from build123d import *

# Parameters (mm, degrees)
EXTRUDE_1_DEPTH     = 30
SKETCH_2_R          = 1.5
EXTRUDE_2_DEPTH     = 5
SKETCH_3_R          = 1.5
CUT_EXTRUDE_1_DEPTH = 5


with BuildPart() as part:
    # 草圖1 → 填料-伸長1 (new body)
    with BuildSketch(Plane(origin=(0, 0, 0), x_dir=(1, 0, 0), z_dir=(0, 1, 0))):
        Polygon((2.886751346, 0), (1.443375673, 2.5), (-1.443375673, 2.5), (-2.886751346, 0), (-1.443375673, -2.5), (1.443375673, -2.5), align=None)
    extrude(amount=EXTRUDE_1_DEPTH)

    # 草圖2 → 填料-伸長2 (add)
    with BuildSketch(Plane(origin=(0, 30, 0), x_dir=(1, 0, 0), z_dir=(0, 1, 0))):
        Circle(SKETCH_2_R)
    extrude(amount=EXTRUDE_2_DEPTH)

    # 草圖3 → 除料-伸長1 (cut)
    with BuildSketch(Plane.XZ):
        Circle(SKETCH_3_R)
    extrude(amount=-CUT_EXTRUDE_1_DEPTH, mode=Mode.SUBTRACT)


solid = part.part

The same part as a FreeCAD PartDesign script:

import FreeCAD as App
import Part
import Sketcher
from FreeCAD import Vector
Q = App.Units.Quantity


def add_polygon(sketch, points):
    """Adds a closed chain of lines whose ends are joined by coincident constraints."""
    first, n = sketch.GeometryCount, len(points)
    for a, b in zip(points, points[1:] + points[:1]):
        sketch.addGeometry(Part.LineSegment(App.Vector(*a, 0), App.Vector(*b, 0)), False)
    for i in range(n):
        sketch.addConstraint(Sketcher.Constraint("Coincident", first + i, 2, first + (i + 1) % n, 1))

doc = App.newDocument("Part")
params = doc.addObject("Spreadsheet::Sheet", "Params")
for row, (alias, value) in enumerate([
    ("pad1_length", "30 mm"),
    ("sketch2_diameter", "3 mm"),
    ("pad2_length", "5 mm"),
    ("sketch3_diameter", "3 mm"),
    ("pocket1_length", "5 mm"),
], start=1):
    params.set(f"A{row}", alias)
    params.set(f"B{row}", "=" + value)
    params.setAlias(f"B{row}", alias)

body = doc.addObject("PartDesign::Body", "Body")

# Sketch on XZ plane
sketch1 = body.newObject("Sketcher::SketchObject", "Sketch")
sketch1.AttachmentSupport = (doc.getObject("XZ_Plane"), [""])
sketch1.MapMode = "FlatFace"
add_polygon(sketch1, [(2.9, 0), (1.4, -2.5), (-1.4, -2.5), (-2.9, 0), (-1.4, 2.5), (1.4, 2.5)])  # lines 0-5
sketch1.addConstraint(Sketcher.Constraint("Horizontal", 1))
sketch1.addConstraint(Sketcher.Constraint("Horizontal", 4))
sketch1.addConstraint(Sketcher.Constraint("Symmetric", 0, 2, 3, 2, -1, 1))
sketch1.addConstraint(Sketcher.Constraint("Symmetric", 2, 2, 5, 2, -1, 1))
sketch1.addConstraint(Sketcher.Constraint("PointOnObject", 2, 2, -1))
sketch1.addConstraint(Sketcher.Constraint("Parallel", 2, 5))
sketch1.addConstraint(Sketcher.Constraint("Vertical", 1, 2, 3, 2))
sketch1.addConstraint(Sketcher.Constraint("Angle", 0, Q("-120 deg")))
sketch1.addConstraint(Sketcher.Constraint("DistanceY", 1, 2, 3, 2, Q("5 mm")))
sketch1.addConstraint(Sketcher.Constraint("DistanceX", 1, 2, 1, 1, Q("2.886751 mm")))
pad1 = body.newObject("PartDesign::Pad", "Pad")
pad1.Profile = sketch1
pad1.setExpression("Length", "Params.pad1_length")
pad1.Reversed = True

# Sketch on XZ plane
sketch2 = body.newObject("Sketcher::SketchObject", "Sketch001")
sketch2.AttachmentSupport = (doc.getObject("XZ_Plane"), [""])
sketch2.MapMode = "FlatFace"
sketch2.AttachmentOffset = App.Placement(Vector(0, 0, -30), App.Rotation())
sketch2.addGeometry(Part.Circle(Vector(0, 0, 0), Vector(0, 0, 1), 1.5), False)
sketch2.addConstraint(Sketcher.Constraint("Coincident", 0, 3, -1, 1))
sketch2.addConstraint(Sketcher.Constraint("Diameter", 0, Q("3 mm")))
sketch2.setExpression("Constraints[1]", "Params.sketch2_diameter")
pad2 = body.newObject("PartDesign::Pad", "Pad001")
pad2.Profile = sketch2
pad2.setExpression("Length", "Params.pad2_length")
pad2.Reversed = True

# Sketch on XZ plane
sketch3 = body.newObject("Sketcher::SketchObject", "Sketch002")
sketch3.AttachmentSupport = (doc.getObject("XZ_Plane"), [""])
sketch3.MapMode = "FlatFace"
sketch3.addGeometry(Part.Circle(Vector(0, 0, 0), Vector(0, 0, 1), 1.5), False)
sketch3.addConstraint(Sketcher.Constraint("Coincident", 0, 3, -1, 1))
sketch3.addConstraint(Sketcher.Constraint("Diameter", 0, Q("3 mm")))
sketch3.setExpression("Constraints[1]", "Params.sketch3_diameter")
pocket1 = body.newObject("PartDesign::Pocket", "Pocket")
pocket1.Profile = sketch3
pocket1.setExpression("Length", "Params.pocket1_length")

doc.recompute()
